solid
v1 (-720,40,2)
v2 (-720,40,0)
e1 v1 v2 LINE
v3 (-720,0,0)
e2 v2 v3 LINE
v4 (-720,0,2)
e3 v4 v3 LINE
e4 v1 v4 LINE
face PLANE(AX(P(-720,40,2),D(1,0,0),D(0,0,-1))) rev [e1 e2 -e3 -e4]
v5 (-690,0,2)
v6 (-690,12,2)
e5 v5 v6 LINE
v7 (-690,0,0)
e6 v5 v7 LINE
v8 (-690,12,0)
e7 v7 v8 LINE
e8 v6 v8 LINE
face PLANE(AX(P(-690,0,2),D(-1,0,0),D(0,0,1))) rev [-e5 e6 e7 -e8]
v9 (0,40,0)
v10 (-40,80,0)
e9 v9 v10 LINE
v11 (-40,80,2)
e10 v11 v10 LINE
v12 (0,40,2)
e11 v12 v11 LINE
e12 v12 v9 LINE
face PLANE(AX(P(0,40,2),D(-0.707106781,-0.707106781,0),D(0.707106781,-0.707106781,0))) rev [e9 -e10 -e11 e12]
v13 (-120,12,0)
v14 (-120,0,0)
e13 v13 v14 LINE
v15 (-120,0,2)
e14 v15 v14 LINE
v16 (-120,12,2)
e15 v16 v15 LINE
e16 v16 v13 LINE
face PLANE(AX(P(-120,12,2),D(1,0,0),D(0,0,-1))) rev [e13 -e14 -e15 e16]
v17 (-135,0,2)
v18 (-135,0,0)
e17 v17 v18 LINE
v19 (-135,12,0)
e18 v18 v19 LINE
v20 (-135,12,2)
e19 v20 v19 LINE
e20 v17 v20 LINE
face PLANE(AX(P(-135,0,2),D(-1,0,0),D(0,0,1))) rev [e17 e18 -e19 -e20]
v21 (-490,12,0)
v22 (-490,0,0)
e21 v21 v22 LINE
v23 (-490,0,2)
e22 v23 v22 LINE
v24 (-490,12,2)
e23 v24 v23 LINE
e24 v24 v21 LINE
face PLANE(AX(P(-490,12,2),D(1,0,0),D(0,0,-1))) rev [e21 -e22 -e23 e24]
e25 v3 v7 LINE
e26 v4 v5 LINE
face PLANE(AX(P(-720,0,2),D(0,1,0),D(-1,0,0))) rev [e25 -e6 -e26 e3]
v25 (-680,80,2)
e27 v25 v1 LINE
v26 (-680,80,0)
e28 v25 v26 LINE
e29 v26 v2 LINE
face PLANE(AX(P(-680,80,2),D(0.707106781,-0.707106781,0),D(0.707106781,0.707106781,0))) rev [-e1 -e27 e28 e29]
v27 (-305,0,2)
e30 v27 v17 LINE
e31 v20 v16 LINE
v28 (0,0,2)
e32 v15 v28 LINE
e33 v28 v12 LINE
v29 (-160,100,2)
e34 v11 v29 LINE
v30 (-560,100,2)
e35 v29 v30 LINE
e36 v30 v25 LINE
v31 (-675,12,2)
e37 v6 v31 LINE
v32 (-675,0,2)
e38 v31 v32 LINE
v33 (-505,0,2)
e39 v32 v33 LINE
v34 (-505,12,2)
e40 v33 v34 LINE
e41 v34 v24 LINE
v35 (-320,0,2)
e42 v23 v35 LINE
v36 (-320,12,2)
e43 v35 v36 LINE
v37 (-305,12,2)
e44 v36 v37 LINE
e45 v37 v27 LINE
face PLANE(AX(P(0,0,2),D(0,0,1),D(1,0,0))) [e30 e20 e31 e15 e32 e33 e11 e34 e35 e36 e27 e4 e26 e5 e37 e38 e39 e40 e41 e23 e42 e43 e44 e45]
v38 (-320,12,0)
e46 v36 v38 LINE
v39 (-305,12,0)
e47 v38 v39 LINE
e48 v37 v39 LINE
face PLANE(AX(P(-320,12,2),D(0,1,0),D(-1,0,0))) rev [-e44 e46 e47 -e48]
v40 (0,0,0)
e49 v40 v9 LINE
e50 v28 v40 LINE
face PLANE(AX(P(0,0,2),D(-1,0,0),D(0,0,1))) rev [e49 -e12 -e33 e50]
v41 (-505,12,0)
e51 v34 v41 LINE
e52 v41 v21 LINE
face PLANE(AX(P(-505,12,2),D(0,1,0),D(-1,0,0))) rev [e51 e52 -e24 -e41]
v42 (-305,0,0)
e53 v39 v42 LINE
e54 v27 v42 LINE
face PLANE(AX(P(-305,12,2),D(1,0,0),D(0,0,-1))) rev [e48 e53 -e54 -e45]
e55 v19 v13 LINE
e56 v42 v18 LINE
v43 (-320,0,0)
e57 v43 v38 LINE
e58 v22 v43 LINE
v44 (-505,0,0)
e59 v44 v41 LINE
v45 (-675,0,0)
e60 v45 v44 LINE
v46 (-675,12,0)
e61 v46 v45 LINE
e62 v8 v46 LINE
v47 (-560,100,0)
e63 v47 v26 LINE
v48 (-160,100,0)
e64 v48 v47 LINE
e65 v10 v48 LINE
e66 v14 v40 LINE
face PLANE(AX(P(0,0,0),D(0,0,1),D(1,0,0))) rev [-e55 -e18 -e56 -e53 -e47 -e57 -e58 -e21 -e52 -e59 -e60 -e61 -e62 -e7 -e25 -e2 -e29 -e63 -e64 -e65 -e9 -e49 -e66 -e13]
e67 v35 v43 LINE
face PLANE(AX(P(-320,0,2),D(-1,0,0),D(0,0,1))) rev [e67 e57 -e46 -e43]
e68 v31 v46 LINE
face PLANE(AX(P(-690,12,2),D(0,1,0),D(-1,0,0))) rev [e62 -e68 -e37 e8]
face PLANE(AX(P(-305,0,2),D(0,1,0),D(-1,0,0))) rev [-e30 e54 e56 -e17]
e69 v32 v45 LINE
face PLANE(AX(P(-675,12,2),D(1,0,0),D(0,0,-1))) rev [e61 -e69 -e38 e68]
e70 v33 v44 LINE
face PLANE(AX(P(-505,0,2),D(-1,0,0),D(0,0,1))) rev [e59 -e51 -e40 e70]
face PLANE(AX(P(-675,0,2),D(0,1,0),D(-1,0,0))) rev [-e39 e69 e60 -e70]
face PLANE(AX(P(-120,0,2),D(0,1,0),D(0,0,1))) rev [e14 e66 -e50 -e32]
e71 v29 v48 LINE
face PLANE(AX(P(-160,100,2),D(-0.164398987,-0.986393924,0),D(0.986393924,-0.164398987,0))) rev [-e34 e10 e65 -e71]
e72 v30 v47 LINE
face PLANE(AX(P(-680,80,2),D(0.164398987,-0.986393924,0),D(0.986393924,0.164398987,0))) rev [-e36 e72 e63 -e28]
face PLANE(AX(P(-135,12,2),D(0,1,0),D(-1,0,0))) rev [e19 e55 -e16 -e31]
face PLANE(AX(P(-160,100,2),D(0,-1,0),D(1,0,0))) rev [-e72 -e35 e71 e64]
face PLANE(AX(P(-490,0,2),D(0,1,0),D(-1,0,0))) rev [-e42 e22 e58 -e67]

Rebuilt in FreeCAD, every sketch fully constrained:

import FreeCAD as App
import Part
import Sketcher
from FreeCAD import Vector
Q = App.Units.Quantity


def add_polygon(sketch, points):
    """Adds a closed chain of lines whose ends are joined by coincident constraints."""
    first, n = sketch.GeometryCount, len(points)
    for a, b in zip(points, points[1:] + points[:1]):
        sketch.addGeometry(Part.LineSegment(App.Vector(*a, 0), App.Vector(*b, 0)), False)
    for i in range(n):
        sketch.addConstraint(Sketcher.Constraint("Coincident", first + i, 2, first + (i + 1) % n, 1))

doc = App.newDocument("Part")
params = doc.addObject("Spreadsheet::Sheet", "Params")
for row, (alias, value) in enumerate([
    ("sketch1_width", "30 mm"),
    ("sketch1_width2", "15 mm"),
    ("sketch1_width3", "170 mm"),
    ("sketch1_width4", "120 mm"),
    ("sketch1_width5", "400 mm"),
    ("pad1_length", "2 mm"),
], start=1):
    params.set(f"A{row}", alias)
    params.set(f"B{row}", "=" + value)
    params.setAlias(f"B{row}", alias)

body = doc.addObject("PartDesign::Body", "Body")

# Sketch on XY plane
sketch1 = body.newObject("Sketcher::SketchObject", "Sketch")
sketch1.AttachmentSupport = (doc.getObject("XY_Plane"), [""])
sketch1.MapMode = "FlatFace"
add_polygon(sketch1, [(-720, 0), (-690, 0), (-690, 12), (-675, 12), (-675, 0), (-505, 0), (-505, 12), (-490, 12), (-490, 0), (-320, 0), (-320, 12), (-305, 12), (-305, 0), (-135, 0), (-135, 12), (-120, 12), (-120, 0), (0, 0), (0, 40), (-40, 80), (-160, 100), (-560, 100), (-680, 80), (-720, 40)])  # lines 0-23
sketch1.addConstraint(Sketcher.Constraint("Horizontal", 0))
sketch1.addConstraint(Sketcher.Constraint("Vertical", 1))
sketch1.addConstraint(Sketcher.Constraint("Horizontal", 2))
sketch1.addConstraint(Sketcher.Constraint("Vertical", 3))
sketch1.addConstraint(Sketcher.Constraint("Horizontal", 4))
sketch1.addConstraint(Sketcher.Constraint("Vertical", 5))
sketch1.addConstraint(Sketcher.Constraint("Horizontal", 6))
sketch1.addConstraint(Sketcher.Constraint("Vertical", 7))
sketch1.addConstraint(Sketcher.Constraint("Horizontal", 8))
sketch1.addConstraint(Sketcher.Constraint("Vertical", 9))
sketch1.addConstraint(Sketcher.Constraint("Horizontal", 10))
sketch1.addConstraint(Sketcher.Constraint("Vertical", 11))
sketch1.addConstraint(Sketcher.Constraint("Horizontal", 12))
sketch1.addConstraint(Sketcher.Constraint("Vertical", 13))
sketch1.addConstraint(Sketcher.Constraint("Horizontal", 14))
sketch1.addConstraint(Sketcher.Constraint("Vertical", 15))
sketch1.addConstraint(Sketcher.Constraint("Horizontal", 16))
sketch1.addConstraint(Sketcher.Constraint("Vertical", 17))
sketch1.addConstraint(Sketcher.Constraint("Horizontal", 20))
sketch1.addConstraint(Sketcher.Constraint("Vertical", 23))
sketch1.addConstraint(Sketcher.Constraint("Coincident", 16, 2, -1, 1))
sketch1.addConstraint(Sketcher.Constraint("PointOnObject", 0, 2, -1))
sketch1.addConstraint(Sketcher.Constraint("PointOnObject", 3, 2, -1))
sketch1.addConstraint(Sketcher.Constraint("PointOnObject", 7, 2, -1))
sketch1.addConstraint(Sketcher.Constraint("PointOnObject", 11, 2, -1))
sketch1.addConstraint(Sketcher.Constraint("Perpendicular", 18, 22))
sketch1.addConstraint(Sketcher.Constraint("Horizontal", 2, 2, 5, 2))
sketch1.addConstraint(Sketcher.Constraint("Horizontal", 6, 2, 9, 2))
sketch1.addConstraint(Sketcher.Constraint("Horizontal", 10, 2, 13, 2))
sketch1.addConstraint(Sketcher.Constraint("Horizontal", 18, 2, 21, 2))
sketch1.addConstraint(Sketcher.Constraint("Horizontal", 17, 2, 22, 2))
sketch1.addConstraint(Sketcher.Constraint("Equal", 2, 6))
sketch1.addConstraint(Sketcher.Constraint("Equal", 4, 8))
sketch1.addConstraint(Sketcher.Constraint("Equal", 6, 10))
sketch1.addConstraint(Sketcher.Constraint("Equal", 8, 12))
sketch1.addConstraint(Sketcher.Constraint("Equal", 10, 14))
sketch1.addConstraint(Sketcher.Constraint("Equal", 19, 21))
sketch1.addConstraint(Sketcher.Constraint("Equal", 18, 22))
sketch1.addConstraint(Sketcher.Constraint("DistanceX", 0, 1, 0, 2, Q("30 mm")))
sketch1.addConstraint(Sketcher.Constraint("DistanceX", 2, 1, 2, 2, Q("15 mm")))
sketch1.addConstraint(Sketcher.Constraint("DistanceX", 4, 1, 4, 2, Q("170 mm")))
sketch1.addConstraint(Sketcher.Constraint("DistanceX", 16, 1, 16, 2, Q("120 mm")))
sketch1.addConstraint(Sketcher.Constraint("DistanceX", 20, 2, 20, 1, Q("400 mm")))
sketch1.addConstraint(Sketcher.Constraint("DistanceY", 1, 1, 1, 2, Q("12 mm")))
sketch1.addConstraint(Sketcher.Constraint("DistanceY", 17, 1, 17, 2, Q("40 mm")))
sketch1.addConstraint(Sketcher.Constraint("DistanceX", 18, 2, -1, 1, Q("40 mm")))
sketch1.addConstraint(Sketcher.Constraint("DistanceY", -1, 1, 19, 2, Q("100 mm")))
sketch1.setExpression("Constraints[62]", "Params.sketch1_width")
sketch1.setExpression("Constraints[63]", "Params.sketch1_width2")
sketch1.setExpression("Constraints[64]", "Params.sketch1_width3")
sketch1.setExpression("Constraints[65]", "Params.sketch1_width4")
sketch1.setExpression("Constraints[66]", "Params.sketch1_width5")
pad1 = body.newObject("PartDesign::Pad", "Pad")
pad1.Profile = sketch1
pad1.setExpression("Length", "Params.pad1_length")

doc.recompute()
